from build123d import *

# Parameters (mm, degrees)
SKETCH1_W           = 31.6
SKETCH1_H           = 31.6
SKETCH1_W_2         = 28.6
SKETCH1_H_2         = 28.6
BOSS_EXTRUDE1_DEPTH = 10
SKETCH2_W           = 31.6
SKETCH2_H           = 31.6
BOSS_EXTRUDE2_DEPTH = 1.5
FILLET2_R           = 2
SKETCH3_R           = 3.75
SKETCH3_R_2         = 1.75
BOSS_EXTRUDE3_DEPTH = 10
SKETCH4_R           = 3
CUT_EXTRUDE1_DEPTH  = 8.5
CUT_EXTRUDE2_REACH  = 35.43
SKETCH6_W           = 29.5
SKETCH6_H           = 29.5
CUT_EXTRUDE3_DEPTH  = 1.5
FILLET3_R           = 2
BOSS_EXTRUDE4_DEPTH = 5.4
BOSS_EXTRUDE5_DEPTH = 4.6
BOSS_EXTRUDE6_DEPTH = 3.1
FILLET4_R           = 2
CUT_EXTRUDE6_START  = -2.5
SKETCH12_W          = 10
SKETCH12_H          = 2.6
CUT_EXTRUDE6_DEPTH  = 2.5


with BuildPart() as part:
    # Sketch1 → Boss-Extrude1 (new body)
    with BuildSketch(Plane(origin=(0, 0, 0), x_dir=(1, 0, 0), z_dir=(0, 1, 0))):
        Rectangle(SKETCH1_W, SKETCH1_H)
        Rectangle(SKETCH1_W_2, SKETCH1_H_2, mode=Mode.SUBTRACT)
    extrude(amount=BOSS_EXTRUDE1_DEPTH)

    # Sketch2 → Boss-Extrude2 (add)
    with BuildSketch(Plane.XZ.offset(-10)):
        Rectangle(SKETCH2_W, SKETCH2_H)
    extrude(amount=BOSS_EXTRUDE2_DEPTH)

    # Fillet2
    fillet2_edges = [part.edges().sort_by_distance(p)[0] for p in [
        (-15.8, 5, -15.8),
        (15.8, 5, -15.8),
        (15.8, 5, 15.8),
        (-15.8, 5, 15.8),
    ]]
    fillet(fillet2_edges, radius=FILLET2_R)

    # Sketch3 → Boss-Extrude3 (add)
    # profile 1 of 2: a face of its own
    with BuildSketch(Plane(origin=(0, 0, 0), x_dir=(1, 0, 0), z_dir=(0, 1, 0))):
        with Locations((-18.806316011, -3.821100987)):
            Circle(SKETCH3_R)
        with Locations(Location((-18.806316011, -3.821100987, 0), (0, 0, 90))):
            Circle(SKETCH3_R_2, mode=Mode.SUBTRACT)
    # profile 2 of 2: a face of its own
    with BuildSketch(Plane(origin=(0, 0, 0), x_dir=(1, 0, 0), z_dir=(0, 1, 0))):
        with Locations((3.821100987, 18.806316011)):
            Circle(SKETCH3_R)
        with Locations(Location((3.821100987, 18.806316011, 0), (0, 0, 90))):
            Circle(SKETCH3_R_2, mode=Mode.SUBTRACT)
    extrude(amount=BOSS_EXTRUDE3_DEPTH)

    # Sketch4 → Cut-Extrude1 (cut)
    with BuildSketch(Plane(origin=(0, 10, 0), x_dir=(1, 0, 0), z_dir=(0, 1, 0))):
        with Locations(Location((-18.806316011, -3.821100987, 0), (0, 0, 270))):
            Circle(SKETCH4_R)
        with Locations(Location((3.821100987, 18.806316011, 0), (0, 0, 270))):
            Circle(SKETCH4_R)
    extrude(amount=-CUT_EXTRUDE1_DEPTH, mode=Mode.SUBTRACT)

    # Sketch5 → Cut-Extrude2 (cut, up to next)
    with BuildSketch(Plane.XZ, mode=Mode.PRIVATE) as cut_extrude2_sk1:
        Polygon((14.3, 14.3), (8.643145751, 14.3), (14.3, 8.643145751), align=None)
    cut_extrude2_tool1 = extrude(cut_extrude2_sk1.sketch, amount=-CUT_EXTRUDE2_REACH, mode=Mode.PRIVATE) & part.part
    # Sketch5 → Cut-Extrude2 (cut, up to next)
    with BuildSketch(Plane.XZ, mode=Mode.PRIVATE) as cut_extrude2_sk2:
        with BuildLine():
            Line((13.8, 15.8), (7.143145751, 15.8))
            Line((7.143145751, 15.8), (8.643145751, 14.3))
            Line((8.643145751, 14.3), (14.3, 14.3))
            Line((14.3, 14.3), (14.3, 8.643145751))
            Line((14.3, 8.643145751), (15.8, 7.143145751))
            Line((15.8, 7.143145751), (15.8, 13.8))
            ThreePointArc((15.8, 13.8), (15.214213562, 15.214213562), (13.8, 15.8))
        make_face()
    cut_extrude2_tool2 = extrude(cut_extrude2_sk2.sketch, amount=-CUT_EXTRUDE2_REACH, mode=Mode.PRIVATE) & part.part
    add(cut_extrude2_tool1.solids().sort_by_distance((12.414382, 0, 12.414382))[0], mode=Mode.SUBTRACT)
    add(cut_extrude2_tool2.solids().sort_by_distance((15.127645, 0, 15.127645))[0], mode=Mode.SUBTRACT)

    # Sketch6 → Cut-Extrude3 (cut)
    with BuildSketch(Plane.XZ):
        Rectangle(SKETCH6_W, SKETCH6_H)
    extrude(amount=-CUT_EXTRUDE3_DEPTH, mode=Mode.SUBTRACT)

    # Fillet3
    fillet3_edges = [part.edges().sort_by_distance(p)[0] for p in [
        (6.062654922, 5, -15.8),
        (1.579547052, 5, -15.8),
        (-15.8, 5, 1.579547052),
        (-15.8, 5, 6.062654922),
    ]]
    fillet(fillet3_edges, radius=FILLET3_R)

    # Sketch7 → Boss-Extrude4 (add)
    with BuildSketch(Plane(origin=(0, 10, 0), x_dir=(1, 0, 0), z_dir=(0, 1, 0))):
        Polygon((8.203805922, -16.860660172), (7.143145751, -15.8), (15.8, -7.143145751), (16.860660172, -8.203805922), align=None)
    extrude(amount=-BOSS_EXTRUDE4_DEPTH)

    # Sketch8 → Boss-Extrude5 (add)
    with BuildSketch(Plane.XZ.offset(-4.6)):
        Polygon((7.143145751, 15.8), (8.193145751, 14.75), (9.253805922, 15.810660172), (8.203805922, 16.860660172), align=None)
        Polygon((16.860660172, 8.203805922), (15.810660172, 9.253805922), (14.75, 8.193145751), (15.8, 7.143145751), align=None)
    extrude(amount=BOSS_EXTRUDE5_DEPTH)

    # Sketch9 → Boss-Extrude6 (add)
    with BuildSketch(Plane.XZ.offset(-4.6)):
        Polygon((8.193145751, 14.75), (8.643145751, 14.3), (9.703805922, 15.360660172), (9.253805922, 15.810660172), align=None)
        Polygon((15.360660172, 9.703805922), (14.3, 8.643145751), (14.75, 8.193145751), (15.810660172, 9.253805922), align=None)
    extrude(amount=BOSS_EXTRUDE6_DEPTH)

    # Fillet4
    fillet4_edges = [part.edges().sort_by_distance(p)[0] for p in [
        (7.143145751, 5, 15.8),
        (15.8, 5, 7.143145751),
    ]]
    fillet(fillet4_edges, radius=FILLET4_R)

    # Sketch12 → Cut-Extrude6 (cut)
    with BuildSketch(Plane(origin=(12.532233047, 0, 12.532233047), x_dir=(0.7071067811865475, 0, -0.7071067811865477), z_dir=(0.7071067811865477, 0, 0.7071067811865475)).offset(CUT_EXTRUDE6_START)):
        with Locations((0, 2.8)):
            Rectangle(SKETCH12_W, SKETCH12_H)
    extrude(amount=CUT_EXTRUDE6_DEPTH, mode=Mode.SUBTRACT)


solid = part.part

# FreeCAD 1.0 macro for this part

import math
import FreeCAD as App
import Part
import Sketcher
Q = App.Units.Quantity


def edges_at(feature, points):
    """Names of the edges that pass closest to the given points."""
    edges = feature.Shape.Edges
    near = lambda p: min(range(len(edges)), key=lambda i: edges[i].distToShape(Part.Vertex(*p))[0])
    return sorted({f"Edge{near(p) + 1}" for p in points})


def add_polygon(sketch, points):
    """Adds a closed chain of lines whose ends are joined by coincident constraints."""
    first, n = sketch.GeometryCount, len(points)
    for a, b in zip(points, points[1:] + points[:1]):
        sketch.addGeometry(Part.LineSegment(App.Vector(*a, 0), App.Vector(*b, 0)), False)
    for i in range(n):
        sketch.addConstraint(Sketcher.Constraint("Coincident", first + i, 2, first + (i + 1) % n, 1))

doc = App.newDocument("Part")
body = doc.addObject("PartDesign::Body", "Body")

# Sketch on XZ plane
sketch1 = doc.addObject("Sketcher::SketchObject", "Sketch")
body.addObject(sketch1)
sketch1.AttachmentSupport = (doc.XZ_Plane, [""])
sketch1.MapMode = "FlatFace"
add_polygon(sketch1, [(-15.8, -15.8), (-15.8, 15.8), (15.8, 15.8), (15.8, -15.8)])  # lines 0-3
add_polygon(sketch1, [(14.3, 14.3), (-14.3, 14.3), (-14.3, -14.3), (14.3, -14.3)])  # lines 4-7
sketch1.addConstraint([
    Sketcher.Constraint("Vertical", 0),
    Sketcher.Constraint("Horizontal", 1),
    Sketcher.Constraint("Vertical", 2),
    Sketcher.Constraint("Horizontal", 3),
    Sketcher.Constraint("Horizontal", 4),
    Sketcher.Constraint("Vertical", 5),
    Sketcher.Constraint("Horizontal", 6),
    Sketcher.Constraint("Vertical", 7),
    Sketcher.Constraint("Symmetric", 0, 2, 2, 2, -1, 1),
    Sketcher.Constraint("Symmetric", 4, 2, 6, 2, -1, 1),
    Sketcher.Constraint("Equal", 3, 0),
    Sketcher.Constraint("Equal", 6, 5),
    Sketcher.Constraint("DistanceX", 1, 1, 1, 2, Q("31.6 mm")),
    Sketcher.Constraint("DistanceX", 4, 2, 4, 1, Q("28.6 mm")),
])
pad1 = doc.addObject("PartDesign::Pad", "Pad")
body.addObject(pad1)
pad1.Profile = sketch1
pad1.Length = 10
pad1.Reversed = True

# Sketch on XZ plane
sketch2 = doc.addObject("Sketcher::SketchObject", "Sketch001")
body.addObject(sketch2)
sketch2.AttachmentSupport = (doc.XZ_Plane, [""])
sketch2.MapMode = "FlatFace"
sketch2.AttachmentOffset = App.Placement(App.Vector(0, 0, -10), App.Rotation())
add_polygon(sketch2, [(-15.8, 15.8), (-15.8, -15.8), (15.8, -15.8), (15.8, 15.8)])  # lines 0-3
sketch2.addConstraint([
    Sketcher.Constraint("Vertical", 0),
    Sketcher.Constraint("Horizontal", 1),
    Sketcher.Constraint("Vertical", 2),
    Sketcher.Constraint("Horizontal", 3),
    Sketcher.Constraint("Symmetric", 0, 2, 2, 2, -1, 1),
    Sketcher.Constraint("Equal", 3, 0),
    Sketcher.Constraint("DistanceX", 1, 1, 1, 2, Q("31.6 mm")),
])
pad2 = doc.addObject("PartDesign::Pad", "Pad001")
body.addObject(pad2)
pad2.Profile = sketch2
pad2.Length = 1.5
doc.recompute()

fillet = doc.addObject("PartDesign::Fillet", "Fillet")
body.addObject(fillet)
fillet.Base = (pad2, edges_at(pad2, [
    (-15.8, 5, -15.8),
    (15.8, 5, -15.8),
    (15.8, 5, 15.8),
    (-15.8, 5, 15.8),
]))
fillet.Radius = 2

# Sketch on XZ plane
sketch3 = doc.addObject("Sketcher::SketchObject", "Sketch002")
body.addObject(sketch3)
sketch3.AttachmentSupport = (doc.XZ_Plane, [""])
sketch3.MapMode = "FlatFace"
sketch3.addGeometry([
    Part.Circle(App.Vector(-18.806316, 3.821101, 0), App.Vector(0, 0, 1), 3.75),
    Part.Circle(App.Vector(-18.806316, 3.821101, 0), App.Vector(0, 0, 1), 1.75),
    Part.Circle(App.Vector(3.821101, -18.806316, 0), App.Vector(0, 0, 1), 3.75),
    Part.Circle(App.Vector(3.821101, -18.806316, 0), App.Vector(0, 0, 1), 1.75),
], False)
sketch3.addConstraint([
    Sketcher.Constraint("Coincident", 1, 3, 0, 3),
    Sketcher.Constraint("Coincident", 3, 3, 2, 3),
    Sketcher.Constraint("Equal", 0, 2),
    Sketcher.Constraint("Equal", 1, 3),
    Sketcher.Constraint("Diameter", 0, Q("7.5 mm")),
    Sketcher.Constraint("Diameter", 1, Q("3.5 mm")),
    Sketcher.Constraint("DistanceY", -1, 1, 0, 3, Q("3.821101 mm")),
    Sketcher.Constraint("DistanceX", -1, 1, 2, 3, Q("3.821101 mm")),
    Sketcher.Constraint("DistanceX", 0, 3, -1, 1, Q("18.806316 mm")),
    Sketcher.Constraint("DistanceY", 2, 3, -1, 1, Q("18.806316 mm")),
])
pad3 = doc.addObject("PartDesign::Pad", "Pad002")
body.addObject(pad3)
pad3.Profile = sketch3
pad3.Length = 10
pad3.Reversed = True

# Sketch on XZ plane
sketch4 = doc.addObject("Sketcher::SketchObject", "Sketch003")
body.addObject(sketch4)
sketch4.AttachmentSupport = (doc.XZ_Plane, [""])
sketch4.MapMode = "FlatFace"
sketch4.AttachmentOffset = App.Placement(App.Vector(0, 0, -10), App.Rotation())
sketch4.addGeometry([
    Part.Circle(App.Vector(-18.806316, 3.821101, 0), App.Vector(0, 0, 1), 3),
    Part.Circle(App.Vector(3.821101, -18.806316, 0), App.Vector(0, 0, 1), 3),
], False)
sketch4.addConstraint([
    Sketcher.Constraint("Equal", 0, 1),
    Sketcher.Constraint("Diameter", 0, Q("6 mm")),
    Sketcher.Constraint("DistanceY", -1, 1, 0, 3, Q("3.821101 mm")),
    Sketcher.Constraint("DistanceX", -1, 1, 1, 3, Q("3.821101 mm")),
    Sketcher.Constraint("DistanceX", 0, 3, -1, 1, Q("18.806316 mm")),
    Sketcher.Constraint("DistanceY", 1, 3, -1, 1, Q("18.806316 mm")),
])
pocket1 = doc.addObject("PartDesign::Pocket", "Pocket")
body.addObject(pocket1)
pocket1.Profile = sketch4
pocket1.Length = 8.5
pocket1.Reversed = True

# Sketch on XZ plane
sketch5 = doc.addObject("Sketcher::SketchObject", "Sketch004")
body.addObject(sketch5)
sketch5.AttachmentSupport = (doc.XZ_Plane, [""])
sketch5.MapMode = "FlatFace"
add_polygon(sketch5, [(14.3, 14.3), (8.643146, 14.3), (14.3, 8.643146)])  # lines 0-2
sketch5.addConstraint([
    Sketcher.Constraint("Horizontal", 0),
    Sketcher.Constraint("Vertical", 2),
    Sketcher.Constraint("Equal", 0, 2),
    Sketcher.Constraint("Distance", 1, Q("8 mm")),
    Sketcher.Constraint("DistanceY", -1, 1, 0, 2, Q("14.3 mm")),
    Sketcher.Constraint("DistanceX", -1, 1, 1, 2, Q("14.3 mm")),
])
pocket2 = doc.addObject("PartDesign::Pocket", "Pocket001")
body.addObject(pocket2)
pocket2.Profile = sketch5
pocket2.Length = 10

# Sketch on XZ plane
sketch6 = doc.addObject("Sketcher::SketchObject", "Sketch005")
body.addObject(sketch6)
sketch6.AttachmentSupport = (doc.XZ_Plane, [""])
sketch6.MapMode = "FlatFace"
sketch6.addGeometry([
    Part.LineSegment(App.Vector(13.8, 15.8, 0), App.Vector(7.143146, 15.8, 0)),  # 0
    Part.LineSegment(App.Vector(7.143146, 15.8, 0), App.Vector(8.643146, 14.3, 0)),  # 1
    Part.LineSegment(App.Vector(8.643146, 14.3, 0), App.Vector(14.3, 14.3, 0)),  # 2
    Part.LineSegment(App.Vector(14.3, 14.3, 0), App.Vector(14.3, 8.643146, 0)),  # 3
    Part.LineSegment(App.Vector(14.3, 8.643146, 0), App.Vector(15.8, 7.143146, 0)),  # 4
    Part.LineSegment(App.Vector(15.8, 7.143146, 0), App.Vector(15.8, 13.8, 0)),  # 5
    Part.ArcOfCircle(Part.Circle(App.Vector(13.8, 13.8, 0), App.Vector(0, 0, 1), 2), math.radians(0), math.radians(90)),  # 6
], False)
sketch6.addConstraint([
    Sketcher.Constraint("Coincident", 0, 2, 1, 1),
    Sketcher.Constraint("Coincident", 1, 2, 2, 1),
    Sketcher.Constraint("Coincident", 2, 2, 3, 1),
    Sketcher.Constraint("Coincident", 3, 2, 4, 1),
    Sketcher.Constraint("Coincident", 4, 2, 5, 1),
    Sketcher.Constraint("Tangent", 5, 2, 6, 1),
    Sketcher.Constraint("Tangent", 6, 2, 0, 1),
    Sketcher.Constraint("Horizontal", 0),
    Sketcher.Constraint("Horizontal", 2),
    Sketcher.Constraint("Vertical", 3),
    Sketcher.Constraint("Vertical", 5),
    Sketcher.Constraint("Parallel", 1, 4),
    Sketcher.Constraint("Equal", 2, 3),
    Sketcher.Constraint("Equal", 0, 5),
    Sketcher.Constraint("Equal", 1, 4),
    Sketcher.Constraint("Radius", 6, Q("2 mm")),
    Sketcher.Constraint("DistanceX", -1, 1, 6, 3, Q("13.8 mm")),
    Sketcher.Constraint("DistanceY", -1, 1, 6, 3, Q("13.8 mm")),
    Sketcher.Constraint("DistanceY", -1, 1, 1, 2, Q("14.3 mm")),
    Sketcher.Constraint("DistanceX", 0, 2, 0, 1, Q("6.656854 mm")),
])
pocket3 = doc.addObject("PartDesign::Pocket", "Pocket002")
body.addObject(pocket3)
pocket3.Profile = sketch6
pocket3.Length = 10

# Sketch on XZ plane
sketch7 = doc.addObject("Sketcher::SketchObject", "Sketch006")
body.addObject(sketch7)
sketch7.AttachmentSupport = (doc.XZ_Plane, [""])
sketch7.MapMode = "FlatFace"
add_polygon(sketch7, [(-14.75, 14.75), (-14.75, -14.75), (14.75, -14.75), (14.75, 14.75)])  # lines 0-3
sketch7.addConstraint([
    Sketcher.Constraint("Vertical", 0),
    Sketcher.Constraint("Horizontal", 1),
    Sketcher.Constraint("Vertical", 2),
    Sketcher.Constraint("Horizontal", 3),
    Sketcher.Constraint("Symmetric", 0, 2, 2, 2, -1, 1),
    Sketcher.Constraint("Equal", 3, 0),
    Sketcher.Constraint("DistanceX", 1, 1, 1, 2, Q("29.5 mm")),
])
pocket4 = doc.addObject("PartDesign::Pocket", "Pocket003")
body.addObject(pocket4)
pocket4.Profile = sketch7
pocket4.Length = 1.5
doc.recompute()

fillet2 = doc.addObject("PartDesign::Fillet", "Fillet001")
body.addObject(fillet2)
fillet2.Base = (pocket4, edges_at(pocket4, [
    (6.063, 5, -15.8),
    (1.58, 5, -15.8),
    (-15.8, 5, 1.58),
    (-15.8, 5, 6.063),
]))
fillet2.Radius = 2

# Sketch on XZ plane
sketch8 = doc.addObject("Sketcher::SketchObject", "Sketch007")
body.addObject(sketch8)
sketch8.AttachmentSupport = (doc.XZ_Plane, [""])
sketch8.MapMode = "FlatFace"
sketch8.AttachmentOffset = App.Placement(App.Vector(0, 0, -10), App.Rotation())
add_polygon(sketch8, [(7.143146, 15.8), (8.203806, 16.86066), (16.86066, 8.203806), (15.8, 7.143146)])  # lines 0-3
sketch8.addConstraint([
    Sketcher.Constraint("Perpendicular", 0, 1),
    Sketcher.Constraint("Perpendicular", 1, 2),
    Sketcher.Constraint("Perpendicular", 2, 3),
    Sketcher.Constraint("Angle", 0, Q("45 deg")),
    Sketcher.Constraint("Distance", 0, Q("1.5 mm")),
    Sketcher.Constraint("DistanceX", -1, 1, 2, 2, Q("15.8 mm")),
    Sketcher.Constraint("DistanceY", -1, 1, 3, 2, Q("15.8 mm")),
    Sketcher.Constraint("Distance", 1, Q("12.242641 mm")),
])
pad4 = doc.addObject("PartDesign::Pad", "Pad003")
body.addObject(pad4)
pad4.Profile = sketch8
pad4.Length = 5.4

# Sketch on XZ plane
sketch9 = doc.addObject("Sketcher::SketchObject", "Sketch008")
body.addObject(sketch9)
sketch9.AttachmentSupport = (doc.XZ_Plane, [""])
sketch9.MapMode = "FlatFace"
sketch9.AttachmentOffset = App.Placement(App.Vector(0, 0, -4.6), App.Rotation())
add_polygon(sketch9, [(7.143146, 15.8), (8.193146, 14.75), (9.253806, 15.81066), (8.203806, 16.86066)])  # lines 0-3
add_polygon(sketch9, [(16.86066, 8.203806), (15.81066, 9.253806), (14.75, 8.193146), (15.8, 7.143146)])  # lines 4-7
sketch9.addConstraint([
    Sketcher.Constraint("Perpendicular", 0, 1),
    Sketcher.Constraint("Perpendicular", 1, 2),
    Sketcher.Constraint("Perpendicular", 2, 3),
    Sketcher.Constraint("Perpendicular", 3, 4),
    Sketcher.Constraint("Perpendicular", 4, 5),
    Sketcher.Constraint("Perpendicular", 5, 6),
    Sketcher.Constraint("Perpendicular", 6, 7),
    Sketcher.Constraint("Equal", 2, 4),
    Sketcher.Constraint("Equal", 3, 5),
    Sketcher.Constraint("Angle", 0, Q("-45 deg")),
    Sketcher.Constraint("Distance", 1, Q("1.5 mm")),
    Sketcher.Constraint("DistanceY", -1, 1, 3, 2, Q("15.8 mm")),
    Sketcher.Constraint("DistanceX", -1, 1, 6, 2, Q("15.8 mm")),
    Sketcher.Constraint("DistanceY", -1, 1, 0, 2, Q("14.75 mm")),
    Sketcher.Constraint("DistanceX", -1, 1, 0, 2, Q("8.193146 mm")),
    Sketcher.Constraint("DistanceY", -1, 1, 4, 2, Q("9.253806 mm")),
])
pad5 = doc.addObject("PartDesign::Pad", "Pad004")
body.addObject(pad5)
pad5.Profile = sketch9
pad5.Length = 4.6

# Sketch on XZ plane
sketch10 = doc.addObject("Sketcher::SketchObject", "Sketch009")
body.addObject(sketch10)
sketch10.AttachmentSupport = (doc.XZ_Plane, [""])
sketch10.MapMode = "FlatFace"
sketch10.AttachmentOffset = App.Placement(App.Vector(0, 0, -4.6), App.Rotation())
add_polygon(sketch10, [(8.193146, 14.75), (8.643146, 14.3), (9.703806, 15.36066), (9.253806, 15.81066)])  # lines 0-3
add_polygon(sketch10, [(15.36066, 9.703806), (14.3, 8.643146), (14.75, 8.193146), (15.81066, 9.253806)])  # lines 4-7
sketch10.addConstraint([
    Sketcher.Constraint("Perpendicular", 0, 1),
    Sketcher.Constraint("Perpendicular", 1, 2),
    Sketcher.Constraint("Perpendicular", 2, 3),
    Sketcher.Constraint("Parallel", 3, 4),
    Sketcher.Constraint("Perpendicular", 4, 5),
    Sketcher.Constraint("Perpendicular", 5, 6),
    Sketcher.Constraint("Perpendicular", 6, 7),
    Sketcher.Constraint("Equal", 3, 4),
    Sketcher.Constraint("Equal", 2, 5),
    Sketcher.Constraint("Angle", 0, Q("-45 deg")),
    Sketcher.Constraint("Distance", 1, Q("1.5 mm")),
    Sketcher.Constraint("DistanceY", -1, 1, 0, 2, Q("14.3 mm")),
    Sketcher.Constraint("DistanceX", -1, 1, 4, 2, Q("14.3 mm")),
    Sketcher.Constraint("DistanceY", -1, 1, 3, 2, Q("14.75 mm")),
    Sketcher.Constraint("DistanceX", -1, 1, 0, 2, Q("8.643146 mm")),
    Sketcher.Constraint("DistanceY", -1, 1, 4, 2, Q("8.643146 mm")),
])
pad6 = doc.addObject("PartDesign::Pad", "Pad005")
body.addObject(pad6)
pad6.Profile = sketch10
pad6.Length = 3.1
doc.recompute()

fillet3 = doc.addObject("PartDesign::Fillet", "Fillet002")
body.addObject(fillet3)
fillet3.Base = (pad6, edges_at(pad6, [(7.143, 5, 15.8), (15.8, 5, 7.143)]))
fillet3.Radius = 2

# Sketch on an angled plane
sketch11 = doc.addObject("Sketcher::SketchObject", "Sketch010")
body.addObject(sketch11)
sketch11.Placement = App.Placement(App.Vector(10.764466, 0, 10.764466), App.Rotation(App.Vector(0.707106781, 0, -0.707106781), App.Vector(0, 0.999999999, 0), App.Vector(0.707106781, 0, 0.707106781), "ZXY"))
add_polygon(sketch11, [(-5, 4.1), (-5, 1.5), (5, 1.5), (5, 4.1)])  # lines 0-3
sketch11.addConstraint([
    Sketcher.Constraint("Vertical", 0),
    Sketcher.Constraint("Horizontal", 1),
    Sketcher.Constraint("Vertical", 2),
    Sketcher.Constraint("Horizontal", 3),
    Sketcher.Constraint("DistanceX", 1, 1, 1, 2, Q("10 mm")),
    Sketcher.Constraint("DistanceY", 0, 2, 0, 1, Q("2.6 mm")),
    Sketcher.Constraint("DistanceX", 0, 2, -1, 1, Q("5 mm")),
    Sketcher.Constraint("DistanceY", -1, 1, 0, 2, Q("1.5 mm")),
])
pocket5 = doc.addObject("PartDesign::Pocket", "Pocket004")
body.addObject(pocket5)
pocket5.Profile = sketch11
pocket5.Length = 2.5
pocket5.Reversed = True

doc.recompute()
